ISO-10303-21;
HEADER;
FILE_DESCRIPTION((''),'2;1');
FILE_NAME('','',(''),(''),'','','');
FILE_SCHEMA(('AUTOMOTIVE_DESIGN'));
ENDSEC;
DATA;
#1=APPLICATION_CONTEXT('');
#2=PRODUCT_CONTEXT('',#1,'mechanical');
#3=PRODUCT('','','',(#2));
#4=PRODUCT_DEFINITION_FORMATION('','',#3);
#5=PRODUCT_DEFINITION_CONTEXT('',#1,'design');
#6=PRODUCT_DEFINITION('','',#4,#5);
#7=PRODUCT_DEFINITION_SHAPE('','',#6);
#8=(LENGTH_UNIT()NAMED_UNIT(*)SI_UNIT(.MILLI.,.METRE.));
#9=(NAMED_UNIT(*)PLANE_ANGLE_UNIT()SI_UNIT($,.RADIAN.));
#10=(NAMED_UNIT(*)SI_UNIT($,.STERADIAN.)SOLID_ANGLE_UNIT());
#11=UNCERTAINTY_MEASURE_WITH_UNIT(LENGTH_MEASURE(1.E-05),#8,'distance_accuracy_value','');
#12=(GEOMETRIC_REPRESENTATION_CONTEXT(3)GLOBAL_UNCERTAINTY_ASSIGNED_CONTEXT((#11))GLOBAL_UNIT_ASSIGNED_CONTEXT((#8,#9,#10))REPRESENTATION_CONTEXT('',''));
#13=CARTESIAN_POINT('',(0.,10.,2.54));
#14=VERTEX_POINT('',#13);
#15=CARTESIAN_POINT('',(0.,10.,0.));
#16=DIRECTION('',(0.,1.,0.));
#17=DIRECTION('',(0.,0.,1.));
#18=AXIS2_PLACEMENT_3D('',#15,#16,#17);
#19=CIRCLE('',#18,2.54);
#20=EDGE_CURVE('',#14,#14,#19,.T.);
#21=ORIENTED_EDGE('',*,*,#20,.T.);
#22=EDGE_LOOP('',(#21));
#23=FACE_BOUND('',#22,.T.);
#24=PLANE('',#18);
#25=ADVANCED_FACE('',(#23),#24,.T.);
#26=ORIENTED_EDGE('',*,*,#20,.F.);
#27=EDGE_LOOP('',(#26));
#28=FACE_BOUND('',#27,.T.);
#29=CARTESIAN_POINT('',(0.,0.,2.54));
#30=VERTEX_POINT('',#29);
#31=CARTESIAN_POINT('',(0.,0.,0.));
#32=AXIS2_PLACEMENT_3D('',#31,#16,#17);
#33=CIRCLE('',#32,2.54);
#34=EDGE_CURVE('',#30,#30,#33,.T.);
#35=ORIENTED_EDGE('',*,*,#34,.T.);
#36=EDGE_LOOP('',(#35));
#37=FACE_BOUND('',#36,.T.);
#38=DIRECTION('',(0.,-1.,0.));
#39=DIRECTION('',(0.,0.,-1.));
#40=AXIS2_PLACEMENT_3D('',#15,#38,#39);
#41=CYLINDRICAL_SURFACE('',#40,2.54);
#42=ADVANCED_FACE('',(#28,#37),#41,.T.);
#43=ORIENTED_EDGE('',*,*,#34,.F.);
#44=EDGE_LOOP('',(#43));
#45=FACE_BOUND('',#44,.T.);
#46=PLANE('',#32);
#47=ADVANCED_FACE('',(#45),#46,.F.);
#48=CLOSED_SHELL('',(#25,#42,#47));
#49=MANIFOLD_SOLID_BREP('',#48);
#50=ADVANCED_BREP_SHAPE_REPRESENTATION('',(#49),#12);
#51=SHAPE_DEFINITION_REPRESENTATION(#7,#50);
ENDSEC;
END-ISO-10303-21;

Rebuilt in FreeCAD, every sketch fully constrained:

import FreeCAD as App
import Part
import Sketcher

V = App.Vector
Q = App.Units.Quantity

doc = App.newDocument("Part")
params = doc.addObject("Spreadsheet::Sheet", "Params")
for row, (alias, value) in enumerate([
    ("sketch1_diameter", "5.08 mm"),
    ("pad1_length", "10 mm"),
], start=1):
    params.set(f"A{row}", alias)
    params.set(f"B{row}", "=" + value)
    params.setAlias(f"B{row}", alias)

body = doc.addObject("PartDesign::Body", "Body")

sketch1 = body.newObject("Sketcher::SketchObject", "Sketch")
sketch1.AttachmentSupport = (doc.getObject("XZ_Plane"), [""])
sketch1.MapMode = "FlatFace"
sketch1.addGeometry(Part.Circle(V(0, 0, 0), V(0, 0, 1), 2.54), False)
sketch1.addConstraint([
    Sketcher.Constraint("Coincident", 0, 3, -1, 1),
    Sketcher.Constraint("Diameter", 0, Q("5.08 mm")),
])
sketch1.setExpression("Constraints[1]", "Params.sketch1_diameter")
pad1 = body.newObject("PartDesign::Pad", "Pad")
pad1.Profile = sketch1
pad1.setExpression("Length", "Params.pad1_length")
pad1.Reversed = True

doc.recompute()
